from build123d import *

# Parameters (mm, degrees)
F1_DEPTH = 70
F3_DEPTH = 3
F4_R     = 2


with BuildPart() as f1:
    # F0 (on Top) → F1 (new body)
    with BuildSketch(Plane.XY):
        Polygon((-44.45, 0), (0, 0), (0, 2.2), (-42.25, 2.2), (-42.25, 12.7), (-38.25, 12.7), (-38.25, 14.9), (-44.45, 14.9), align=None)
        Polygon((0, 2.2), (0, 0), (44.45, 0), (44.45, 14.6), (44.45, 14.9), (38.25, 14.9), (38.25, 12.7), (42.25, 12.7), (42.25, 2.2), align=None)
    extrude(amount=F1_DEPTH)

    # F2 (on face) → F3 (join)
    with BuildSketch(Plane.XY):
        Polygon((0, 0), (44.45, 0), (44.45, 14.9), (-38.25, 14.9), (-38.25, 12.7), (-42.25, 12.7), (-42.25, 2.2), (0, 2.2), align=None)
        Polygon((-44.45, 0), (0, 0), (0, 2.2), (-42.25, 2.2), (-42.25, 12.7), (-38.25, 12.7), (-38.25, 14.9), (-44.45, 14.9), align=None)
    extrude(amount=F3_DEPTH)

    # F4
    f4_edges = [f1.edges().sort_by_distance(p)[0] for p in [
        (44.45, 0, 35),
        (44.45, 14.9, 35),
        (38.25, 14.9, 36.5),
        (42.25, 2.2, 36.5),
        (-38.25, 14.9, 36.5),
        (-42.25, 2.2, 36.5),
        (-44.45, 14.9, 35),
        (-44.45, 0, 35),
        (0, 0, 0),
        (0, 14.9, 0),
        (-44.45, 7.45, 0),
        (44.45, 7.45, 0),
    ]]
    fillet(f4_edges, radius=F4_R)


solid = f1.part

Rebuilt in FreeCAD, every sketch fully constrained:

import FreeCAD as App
import Part
import Sketcher
Q = App.Units.Quantity


def edges_at(feature, points):
    """Names of the edges that pass closest to the given points."""
    edges = feature.Shape.Edges
    near = lambda p: min(range(len(edges)), key=lambda i: edges[i].distToShape(Part.Vertex(*p))[0])
    return sorted({f"Edge{near(p) + 1}" for p in points})

doc = App.newDocument("Part")
body = doc.addObject("PartDesign::Body", "Body")

sketch1 = body.newObject("Sketcher::SketchObject", "Sketch")
sketch1.AttachmentSupport = (doc.getObject("XY_Plane"), [""])
sketch1.MapMode = "FlatFace"
sketch1.addGeometry(Part.LineSegment(App.Vector(-44.5, 14.9, 0), App.Vector(-44.5, 0, 0)), False)
sketch1.addGeometry(Part.LineSegment(App.Vector(-44.5, 0, 0), App.Vector(44.5, 0, 0)), False)
sketch1.addGeometry(Part.LineSegment(App.Vector(44.5, 0, 0), App.Vector(44.5, 14.9, 0)), False)
sketch1.addGeometry(Part.LineSegment(App.Vector(44.5, 14.9, 0), App.Vector(38.2, 14.9, 0)), False)
sketch1.addGeometry(Part.LineSegment(App.Vector(38.2, 14.9, 0), App.Vector(38.2, 12.7, 0)), False)
sketch1.addGeometry(Part.LineSegment(App.Vector(38.2, 12.7, 0), App.Vector(42.2, 12.7, 0)), False)
sketch1.addGeometry(Part.LineSegment(App.Vector(42.2, 12.7, 0), App.Vector(42.2, 2.2, 0)), False)
sketch1.addGeometry(Part.LineSegment(App.Vector(42.2, 2.2, 0), App.Vector(-42.2, 2.2, 0)), False)
sketch1.addGeometry(Part.LineSegment(App.Vector(-42.2, 2.2, 0), App.Vector(-42.2, 12.7, 0)), False)
sketch1.addGeometry(Part.LineSegment(App.Vector(-42.2, 12.7, 0), App.Vector(-38.2, 12.7, 0)), False)
sketch1.addGeometry(Part.LineSegment(App.Vector(-38.2, 12.7, 0), App.Vector(-38.2, 14.9, 0)), False)
sketch1.addGeometry(Part.LineSegment(App.Vector(-38.2, 14.9, 0), App.Vector(-44.5, 14.9, 0)), False)
sketch1.addConstraint(Sketcher.Constraint("Coincident", 0, 2, 1, 1))
sketch1.addConstraint(Sketcher.Constraint("Coincident", 1, 2, 2, 1))
sketch1.addConstraint(Sketcher.Constraint("Coincident", 2, 2, 3, 1))
sketch1.addConstraint(Sketcher.Constraint("Coincident", 3, 2, 4, 1))
sketch1.addConstraint(Sketcher.Constraint("Coincident", 4, 2, 5, 1))
sketch1.addConstraint(Sketcher.Constraint("Coincident", 5, 2, 6, 1))
sketch1.addConstraint(Sketcher.Constraint("Coincident", 6, 2, 7, 1))
sketch1.addConstraint(Sketcher.Constraint("Coincident", 7, 2, 8, 1))
sketch1.addConstraint(Sketcher.Constraint("Coincident", 8, 2, 9, 1))
sketch1.addConstraint(Sketcher.Constraint("Coincident", 9, 2, 10, 1))
sketch1.addConstraint(Sketcher.Constraint("Coincident", 10, 2, 11, 1))
sketch1.addConstraint(Sketcher.Constraint("Coincident", 11, 2, 0, 1))
sketch1.addConstraint(Sketcher.Constraint("Vertical", 0))
sketch1.addConstraint(Sketcher.Constraint("Horizontal", 1))
sketch1.addConstraint(Sketcher.Constraint("Vertical", 2))
sketch1.addConstraint(Sketcher.Constraint("Horizontal", 3))
sketch1.addConstraint(Sketcher.Constraint("Vertical", 4))
sketch1.addConstraint(Sketcher.Constraint("Horizontal", 5))
sketch1.addConstraint(Sketcher.Constraint("Vertical", 6))
sketch1.addConstraint(Sketcher.Constraint("Horizontal", 7))
sketch1.addConstraint(Sketcher.Constraint("Vertical", 8))
sketch1.addConstraint(Sketcher.Constraint("Horizontal", 9))
sketch1.addConstraint(Sketcher.Constraint("Vertical", 10))
sketch1.addConstraint(Sketcher.Constraint("Horizontal", 11))
sketch1.addConstraint(Sketcher.Constraint("Symmetric", 0, 2, 1, 2, -1, 1))
sketch1.addConstraint(Sketcher.Constraint("Symmetric", 5, 2, 8, 2, -2))
sketch1.addConstraint(Sketcher.Constraint("Symmetric", 3, 2, 10, 2, -2))
sketch1.addConstraint(Sketcher.Constraint("DistanceX", 5, 1, 5, 2, Q("4 mm")))
sketch1.addConstraint(Sketcher.Constraint("DistanceX", 1, 1, 1, 2, Q("88.9 mm")))
sketch1.addConstraint(Sketcher.Constraint("DistanceX", 3, 2, 3, 1, Q("6.2 mm")))
sketch1.addConstraint(Sketcher.Constraint("DistanceY", 0, 2, 0, 1, Q("14.9 mm")))
sketch1.addConstraint(Sketcher.Constraint("DistanceY", 4, 2, 4, 1, Q("2.2 mm")))
sketch1.addConstraint(Sketcher.Constraint("DistanceY", 6, 2, 6, 1, Q("10.5 mm")))
pad1 = body.newObject("PartDesign::Pad", "Pad")
pad1.Profile = sketch1
pad1.Length = 70

sketch2 = body.newObject("Sketcher::SketchObject", "Sketch001")
sketch2.AttachmentSupport = (doc.getObject("XY_Plane"), [""])
sketch2.MapMode = "FlatFace"
sketch2.addGeometry(Part.LineSegment(App.Vector(44, 0, 0), App.Vector(44, 15, 0)), False)
sketch2.addGeometry(Part.LineSegment(App.Vector(44, 15, 0), App.Vector(-44, 15, 0)), False)
sketch2.addGeometry(Part.LineSegment(App.Vector(-44, 15, 0), App.Vector(-44, 0, 0)), False)
sketch2.addGeometry(Part.LineSegment(App.Vector(-44, 0, 0), App.Vector(44, 0, 0)), False)
sketch2.addConstraint(Sketcher.Constraint("Coincident", 0, 2, 1, 1))
sketch2.addConstraint(Sketcher.Constraint("Coincident", 1, 2, 2, 1))
sketch2.addConstraint(Sketcher.Constraint("Coincident", 2, 2, 3, 1))
sketch2.addConstraint(Sketcher.Constraint("Coincident", 3, 2, 0, 1))
sketch2.addConstraint(Sketcher.Constraint("Vertical", 0))
sketch2.addConstraint(Sketcher.Constraint("Horizontal", 1))
sketch2.addConstraint(Sketcher.Constraint("Vertical", 2))
sketch2.addConstraint(Sketcher.Constraint("Horizontal", 3))
sketch2.addConstraint(Sketcher.Constraint("Symmetric", 2, 2, 3, 2, -1, 1))
sketch2.addConstraint(Sketcher.Constraint("DistanceX", 1, 2, 1, 1, Q("88.9 mm")))
sketch2.addConstraint(Sketcher.Constraint("DistanceY", 0, 1, 0, 2, Q("14.9 mm")))
pad2 = body.newObject("PartDesign::Pad", "Pad001")
pad2.Profile = sketch2
pad2.Length = 3
doc.recompute()

fillet = body.newObject("PartDesign::Fillet", "Fillet")
fillet.Base = (pad2, edges_at(pad2, [
    (44.45, 0, 35),
    (44.45, 14.9, 35),
    (38.25, 14.9, 36.5),
    (42.25, 2.2, 36.5),
    (-38.25, 14.9, 36.5),
    (-42.25, 2.2, 36.5),
    (-44.45, 14.9, 35),
    (-44.45, 0, 35),
    (0, 0, 0),
    (0, 14.9, 0),
    (-44.45, 7.45, 0),
    (44.45, 7.45, 0),
]))
fillet.Radius = 2

doc.recompute()
